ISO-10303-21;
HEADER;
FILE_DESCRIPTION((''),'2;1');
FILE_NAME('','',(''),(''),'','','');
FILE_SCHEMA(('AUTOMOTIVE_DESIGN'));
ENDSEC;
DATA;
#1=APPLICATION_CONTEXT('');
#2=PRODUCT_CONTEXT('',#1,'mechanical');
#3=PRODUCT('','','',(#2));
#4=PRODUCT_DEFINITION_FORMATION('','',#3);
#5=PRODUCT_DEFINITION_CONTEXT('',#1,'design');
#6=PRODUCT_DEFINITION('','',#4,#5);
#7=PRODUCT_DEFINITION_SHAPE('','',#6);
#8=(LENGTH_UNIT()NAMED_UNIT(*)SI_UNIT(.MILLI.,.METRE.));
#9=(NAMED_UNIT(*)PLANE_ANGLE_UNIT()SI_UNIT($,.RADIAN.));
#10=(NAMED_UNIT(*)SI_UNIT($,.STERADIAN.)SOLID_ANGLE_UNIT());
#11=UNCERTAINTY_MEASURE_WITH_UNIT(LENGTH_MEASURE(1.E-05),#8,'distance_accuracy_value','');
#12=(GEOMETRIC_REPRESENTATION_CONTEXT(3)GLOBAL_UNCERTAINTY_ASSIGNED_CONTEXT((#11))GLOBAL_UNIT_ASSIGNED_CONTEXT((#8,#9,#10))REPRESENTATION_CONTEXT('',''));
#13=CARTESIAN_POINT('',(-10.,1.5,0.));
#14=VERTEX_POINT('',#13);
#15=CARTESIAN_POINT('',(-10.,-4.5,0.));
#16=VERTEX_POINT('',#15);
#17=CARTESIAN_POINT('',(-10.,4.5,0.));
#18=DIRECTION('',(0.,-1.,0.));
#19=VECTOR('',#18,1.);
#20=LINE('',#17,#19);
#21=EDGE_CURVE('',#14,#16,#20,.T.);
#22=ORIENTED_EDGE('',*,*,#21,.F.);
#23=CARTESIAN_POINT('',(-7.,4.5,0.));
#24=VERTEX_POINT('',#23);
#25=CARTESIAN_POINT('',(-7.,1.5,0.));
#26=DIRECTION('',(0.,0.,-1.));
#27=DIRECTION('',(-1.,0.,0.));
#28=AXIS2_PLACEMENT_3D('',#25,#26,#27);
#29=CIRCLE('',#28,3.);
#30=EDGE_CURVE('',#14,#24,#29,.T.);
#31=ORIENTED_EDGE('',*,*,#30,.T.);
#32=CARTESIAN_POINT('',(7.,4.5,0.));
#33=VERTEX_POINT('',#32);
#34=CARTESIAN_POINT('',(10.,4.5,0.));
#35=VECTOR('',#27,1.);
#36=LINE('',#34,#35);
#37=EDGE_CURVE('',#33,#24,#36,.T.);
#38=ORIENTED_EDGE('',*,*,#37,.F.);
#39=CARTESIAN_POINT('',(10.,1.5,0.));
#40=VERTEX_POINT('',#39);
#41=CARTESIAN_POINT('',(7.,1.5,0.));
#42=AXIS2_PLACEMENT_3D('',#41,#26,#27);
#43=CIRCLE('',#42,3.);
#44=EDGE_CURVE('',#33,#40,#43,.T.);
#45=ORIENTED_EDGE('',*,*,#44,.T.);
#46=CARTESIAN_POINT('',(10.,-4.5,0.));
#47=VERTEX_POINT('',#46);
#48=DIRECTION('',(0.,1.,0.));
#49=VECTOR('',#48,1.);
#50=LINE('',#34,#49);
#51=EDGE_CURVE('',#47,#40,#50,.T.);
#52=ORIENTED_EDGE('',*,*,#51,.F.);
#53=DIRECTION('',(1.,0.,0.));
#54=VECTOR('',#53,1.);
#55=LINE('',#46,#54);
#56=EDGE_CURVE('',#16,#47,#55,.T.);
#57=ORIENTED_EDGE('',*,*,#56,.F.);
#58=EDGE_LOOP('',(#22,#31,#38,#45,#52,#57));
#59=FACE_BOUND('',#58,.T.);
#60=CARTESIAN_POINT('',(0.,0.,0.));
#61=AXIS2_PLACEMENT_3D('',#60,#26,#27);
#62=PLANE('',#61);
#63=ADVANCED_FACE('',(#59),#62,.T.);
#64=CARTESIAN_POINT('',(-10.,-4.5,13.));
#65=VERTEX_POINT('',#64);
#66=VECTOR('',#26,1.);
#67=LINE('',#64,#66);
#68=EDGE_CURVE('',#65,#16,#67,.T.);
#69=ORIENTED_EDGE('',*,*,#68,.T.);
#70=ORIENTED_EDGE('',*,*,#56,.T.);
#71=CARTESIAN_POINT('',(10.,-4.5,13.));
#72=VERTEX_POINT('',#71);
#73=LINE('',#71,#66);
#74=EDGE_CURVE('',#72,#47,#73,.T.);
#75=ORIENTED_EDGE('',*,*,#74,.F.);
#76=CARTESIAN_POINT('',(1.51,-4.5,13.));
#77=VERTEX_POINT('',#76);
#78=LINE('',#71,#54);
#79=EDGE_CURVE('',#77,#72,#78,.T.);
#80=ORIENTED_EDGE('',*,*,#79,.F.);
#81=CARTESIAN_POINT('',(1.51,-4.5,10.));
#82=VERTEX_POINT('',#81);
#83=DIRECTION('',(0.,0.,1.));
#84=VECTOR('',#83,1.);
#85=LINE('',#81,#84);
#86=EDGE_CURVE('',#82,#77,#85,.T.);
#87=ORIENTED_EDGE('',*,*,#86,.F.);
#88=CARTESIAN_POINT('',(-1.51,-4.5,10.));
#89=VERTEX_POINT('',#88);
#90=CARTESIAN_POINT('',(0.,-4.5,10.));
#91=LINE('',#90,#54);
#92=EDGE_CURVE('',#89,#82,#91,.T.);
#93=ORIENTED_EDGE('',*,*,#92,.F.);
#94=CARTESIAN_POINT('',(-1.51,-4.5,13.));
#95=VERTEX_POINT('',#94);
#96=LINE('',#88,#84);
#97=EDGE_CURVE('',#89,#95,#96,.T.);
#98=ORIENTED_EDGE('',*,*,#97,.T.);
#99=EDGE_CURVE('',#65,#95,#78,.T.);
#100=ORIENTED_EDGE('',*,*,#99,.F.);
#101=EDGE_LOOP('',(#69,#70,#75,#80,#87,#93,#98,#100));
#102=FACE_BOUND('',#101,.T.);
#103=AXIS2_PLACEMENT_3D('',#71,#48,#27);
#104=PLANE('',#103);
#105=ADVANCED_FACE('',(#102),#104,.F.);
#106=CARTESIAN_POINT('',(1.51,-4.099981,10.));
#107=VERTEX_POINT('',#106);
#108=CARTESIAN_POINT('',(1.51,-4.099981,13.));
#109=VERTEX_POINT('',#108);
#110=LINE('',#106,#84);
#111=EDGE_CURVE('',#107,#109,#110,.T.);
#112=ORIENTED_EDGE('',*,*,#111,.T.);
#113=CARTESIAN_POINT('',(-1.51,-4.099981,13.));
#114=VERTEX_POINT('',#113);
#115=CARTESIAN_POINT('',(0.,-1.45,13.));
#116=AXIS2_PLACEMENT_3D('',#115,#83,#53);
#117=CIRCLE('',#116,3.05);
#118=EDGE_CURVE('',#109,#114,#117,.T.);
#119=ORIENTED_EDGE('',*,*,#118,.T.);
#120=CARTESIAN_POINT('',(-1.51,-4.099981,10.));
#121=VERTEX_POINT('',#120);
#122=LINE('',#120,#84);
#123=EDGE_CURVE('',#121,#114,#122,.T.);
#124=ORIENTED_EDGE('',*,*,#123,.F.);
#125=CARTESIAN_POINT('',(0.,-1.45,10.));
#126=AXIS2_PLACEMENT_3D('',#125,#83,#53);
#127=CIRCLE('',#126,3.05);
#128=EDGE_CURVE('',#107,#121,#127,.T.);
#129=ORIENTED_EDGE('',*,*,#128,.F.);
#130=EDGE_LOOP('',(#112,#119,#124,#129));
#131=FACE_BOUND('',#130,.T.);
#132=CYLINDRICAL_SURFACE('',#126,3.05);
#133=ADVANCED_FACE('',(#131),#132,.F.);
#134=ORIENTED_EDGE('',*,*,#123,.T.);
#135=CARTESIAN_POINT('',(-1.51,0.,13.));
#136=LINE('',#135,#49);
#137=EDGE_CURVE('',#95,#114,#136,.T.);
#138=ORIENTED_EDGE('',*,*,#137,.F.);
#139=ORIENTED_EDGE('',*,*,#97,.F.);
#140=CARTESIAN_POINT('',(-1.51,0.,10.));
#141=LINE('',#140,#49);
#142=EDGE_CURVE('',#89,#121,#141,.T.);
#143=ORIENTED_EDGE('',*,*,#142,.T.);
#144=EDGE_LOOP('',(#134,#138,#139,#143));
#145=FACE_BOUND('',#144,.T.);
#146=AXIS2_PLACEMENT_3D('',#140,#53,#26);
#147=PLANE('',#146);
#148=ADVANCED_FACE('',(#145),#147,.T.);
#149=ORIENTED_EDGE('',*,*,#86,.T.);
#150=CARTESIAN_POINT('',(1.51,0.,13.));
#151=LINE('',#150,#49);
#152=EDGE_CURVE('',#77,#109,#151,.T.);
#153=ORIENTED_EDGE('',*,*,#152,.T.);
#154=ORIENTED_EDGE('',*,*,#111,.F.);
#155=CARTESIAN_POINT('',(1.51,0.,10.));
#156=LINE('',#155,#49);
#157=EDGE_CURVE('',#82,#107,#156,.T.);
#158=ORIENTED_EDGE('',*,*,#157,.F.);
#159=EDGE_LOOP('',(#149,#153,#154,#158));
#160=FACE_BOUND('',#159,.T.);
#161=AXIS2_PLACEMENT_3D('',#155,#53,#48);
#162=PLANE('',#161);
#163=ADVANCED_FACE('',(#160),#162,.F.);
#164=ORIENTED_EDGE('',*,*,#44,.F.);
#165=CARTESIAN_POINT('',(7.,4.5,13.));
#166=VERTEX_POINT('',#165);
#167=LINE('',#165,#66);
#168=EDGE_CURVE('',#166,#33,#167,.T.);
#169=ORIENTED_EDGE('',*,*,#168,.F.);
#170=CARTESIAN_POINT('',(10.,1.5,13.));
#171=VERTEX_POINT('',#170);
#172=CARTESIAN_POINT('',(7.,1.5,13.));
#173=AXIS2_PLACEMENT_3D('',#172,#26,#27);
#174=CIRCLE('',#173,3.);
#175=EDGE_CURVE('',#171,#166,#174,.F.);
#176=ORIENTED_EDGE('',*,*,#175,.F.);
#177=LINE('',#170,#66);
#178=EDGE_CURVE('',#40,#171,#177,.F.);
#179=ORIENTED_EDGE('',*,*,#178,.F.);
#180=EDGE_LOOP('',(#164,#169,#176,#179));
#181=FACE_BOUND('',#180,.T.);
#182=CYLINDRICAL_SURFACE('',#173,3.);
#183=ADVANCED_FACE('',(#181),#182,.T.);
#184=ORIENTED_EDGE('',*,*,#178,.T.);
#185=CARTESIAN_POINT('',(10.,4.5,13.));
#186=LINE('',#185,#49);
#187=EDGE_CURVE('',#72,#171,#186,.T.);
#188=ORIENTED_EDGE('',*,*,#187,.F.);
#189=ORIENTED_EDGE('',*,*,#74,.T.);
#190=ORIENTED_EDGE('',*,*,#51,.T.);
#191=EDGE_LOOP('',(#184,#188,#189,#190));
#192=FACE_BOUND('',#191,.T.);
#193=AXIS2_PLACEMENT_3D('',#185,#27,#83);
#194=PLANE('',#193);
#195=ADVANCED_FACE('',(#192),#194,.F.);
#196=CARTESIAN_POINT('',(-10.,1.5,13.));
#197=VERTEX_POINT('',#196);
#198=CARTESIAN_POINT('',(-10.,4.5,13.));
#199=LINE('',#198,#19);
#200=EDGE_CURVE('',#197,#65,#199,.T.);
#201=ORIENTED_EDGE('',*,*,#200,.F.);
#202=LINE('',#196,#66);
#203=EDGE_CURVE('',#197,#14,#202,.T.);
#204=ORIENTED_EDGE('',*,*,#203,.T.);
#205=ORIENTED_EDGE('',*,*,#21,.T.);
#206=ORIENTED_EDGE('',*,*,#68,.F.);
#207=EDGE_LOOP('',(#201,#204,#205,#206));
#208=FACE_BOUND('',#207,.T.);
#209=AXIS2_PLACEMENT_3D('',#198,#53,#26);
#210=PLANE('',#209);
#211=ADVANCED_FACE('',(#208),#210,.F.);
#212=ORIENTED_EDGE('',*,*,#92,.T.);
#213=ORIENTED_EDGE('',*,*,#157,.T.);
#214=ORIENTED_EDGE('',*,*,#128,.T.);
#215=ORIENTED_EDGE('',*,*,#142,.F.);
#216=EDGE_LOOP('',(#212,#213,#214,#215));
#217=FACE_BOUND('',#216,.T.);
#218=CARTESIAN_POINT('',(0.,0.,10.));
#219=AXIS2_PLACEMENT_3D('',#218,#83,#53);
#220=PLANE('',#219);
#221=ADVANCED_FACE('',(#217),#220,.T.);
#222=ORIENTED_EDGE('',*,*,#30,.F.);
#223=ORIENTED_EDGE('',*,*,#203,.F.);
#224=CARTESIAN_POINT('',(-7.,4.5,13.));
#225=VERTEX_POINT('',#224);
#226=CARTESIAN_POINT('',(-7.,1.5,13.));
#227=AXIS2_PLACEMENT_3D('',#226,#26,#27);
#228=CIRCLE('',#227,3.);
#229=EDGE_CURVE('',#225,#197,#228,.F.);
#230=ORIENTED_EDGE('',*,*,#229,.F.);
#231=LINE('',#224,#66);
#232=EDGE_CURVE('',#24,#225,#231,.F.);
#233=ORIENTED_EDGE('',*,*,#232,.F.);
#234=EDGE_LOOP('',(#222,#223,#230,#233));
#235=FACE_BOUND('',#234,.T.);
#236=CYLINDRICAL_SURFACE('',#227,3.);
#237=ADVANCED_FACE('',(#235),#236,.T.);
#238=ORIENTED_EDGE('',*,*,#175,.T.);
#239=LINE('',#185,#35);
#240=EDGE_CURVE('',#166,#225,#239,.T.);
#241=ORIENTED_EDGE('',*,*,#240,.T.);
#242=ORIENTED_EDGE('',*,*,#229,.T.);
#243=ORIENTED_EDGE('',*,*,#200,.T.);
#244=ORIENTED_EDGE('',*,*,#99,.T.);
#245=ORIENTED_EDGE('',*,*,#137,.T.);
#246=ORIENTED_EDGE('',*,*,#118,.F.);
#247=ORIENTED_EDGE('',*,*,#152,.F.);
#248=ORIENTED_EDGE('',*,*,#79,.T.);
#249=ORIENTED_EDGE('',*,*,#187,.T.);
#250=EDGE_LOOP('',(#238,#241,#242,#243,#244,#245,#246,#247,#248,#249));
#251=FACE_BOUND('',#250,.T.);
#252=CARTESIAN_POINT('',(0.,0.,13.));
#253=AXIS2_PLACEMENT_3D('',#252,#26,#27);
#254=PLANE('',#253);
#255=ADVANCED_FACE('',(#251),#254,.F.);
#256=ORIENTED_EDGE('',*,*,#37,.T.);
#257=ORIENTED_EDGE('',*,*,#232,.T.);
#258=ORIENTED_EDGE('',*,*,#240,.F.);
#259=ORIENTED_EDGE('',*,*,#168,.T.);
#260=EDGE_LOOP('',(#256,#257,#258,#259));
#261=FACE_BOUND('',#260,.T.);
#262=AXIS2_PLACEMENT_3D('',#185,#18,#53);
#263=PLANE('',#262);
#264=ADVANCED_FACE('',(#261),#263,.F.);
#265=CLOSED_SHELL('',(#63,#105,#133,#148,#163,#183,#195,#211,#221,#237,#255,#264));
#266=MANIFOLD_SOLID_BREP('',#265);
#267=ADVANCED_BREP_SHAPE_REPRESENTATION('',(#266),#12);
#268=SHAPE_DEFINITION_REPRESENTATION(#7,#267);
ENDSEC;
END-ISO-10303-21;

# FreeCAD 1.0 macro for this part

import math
import FreeCAD as App
import Part
import Sketcher
Q = App.Units.Quantity


def edges_at(feature, points):
    """Names of the edges that pass closest to the given points."""
    edges = feature.Shape.Edges
    near = lambda p: min(range(len(edges)), key=lambda i: edges[i].distToShape(Part.Vertex(*p))[0])
    return sorted({f"Edge{near(p) + 1}" for p in points})

doc = App.newDocument("Part")
params = doc.addObject("Spreadsheet::Sheet", "Params")
for row, (alias, value) in enumerate([
    ("sketch1_width", "20 mm"),
    ("sketch1_height", "9 mm"),
    ("pad1_length", "13 mm"),
    ("sketch2_radius", "3.05 mm"),
    ("sketch2_width", "3.02 mm"),
    ("pocket1_length", "3 mm"),
    ("fillet_radius", "3 mm"),
], start=1):
    params.set(f"A{row}", alias)
    params.set(f"B{row}", "=" + value)
    params.setAlias(f"B{row}", alias)

body = doc.addObject("PartDesign::Body", "Body")

sketch1 = body.newObject("Sketcher::SketchObject", "Sketch")
sketch1.AttachmentSupport = (doc.getObject("XY_Plane"), [""])
sketch1.MapMode = "FlatFace"
sketch1.addGeometry(Part.LineSegment(App.Vector(-10, 4.5, 0), App.Vector(-10, -4.5, 0)), False)
sketch1.addGeometry(Part.LineSegment(App.Vector(-10, -4.5, 0), App.Vector(10, -4.5, 0)), False)
sketch1.addGeometry(Part.LineSegment(App.Vector(10, -4.5, 0), App.Vector(10, 4.5, 0)), False)
sketch1.addGeometry(Part.LineSegment(App.Vector(10, 4.5, 0), App.Vector(-10, 4.5, 0)), False)
sketch1.addConstraint(Sketcher.Constraint("Coincident", 0, 2, 1, 1))
sketch1.addConstraint(Sketcher.Constraint("Coincident", 1, 2, 2, 1))
sketch1.addConstraint(Sketcher.Constraint("Coincident", 2, 2, 3, 1))
sketch1.addConstraint(Sketcher.Constraint("Coincident", 3, 2, 0, 1))
sketch1.addConstraint(Sketcher.Constraint("Vertical", 0))
sketch1.addConstraint(Sketcher.Constraint("Horizontal", 1))
sketch1.addConstraint(Sketcher.Constraint("Vertical", 2))
sketch1.addConstraint(Sketcher.Constraint("Horizontal", 3))
sketch1.addConstraint(Sketcher.Constraint("Symmetric", 0, 2, 2, 2, -1, 1))
sketch1.addConstraint(Sketcher.Constraint("DistanceX", 1, 1, 1, 2, Q("20 mm")))
sketch1.addConstraint(Sketcher.Constraint("DistanceY", 0, 2, 0, 1, Q("9 mm")))
sketch1.setExpression("Constraints[9]", "Params.sketch1_width")
sketch1.setExpression("Constraints[10]", "Params.sketch1_height")
pad1 = body.newObject("PartDesign::Pad", "Pad")
pad1.Profile = sketch1
pad1.setExpression("Length", "Params.pad1_length")

sketch2 = body.newObject("Sketcher::SketchObject", "Sketch001")
sketch2.AttachmentSupport = (doc.getObject("XY_Plane"), [""])
sketch2.MapMode = "FlatFace"
sketch2.AttachmentOffset = App.Placement(App.Vector(0, 0, 13), App.Rotation())
sketch2.addGeometry(Part.LineSegment(App.Vector(1.51, -4.5, 0), App.Vector(1.51, -4.099981, 0)), False)
sketch2.addGeometry(Part.ArcOfCircle(Part.Circle(App.Vector(0, -1.45, 0), App.Vector(0, 0, 1), 3.05), math.radians(-60.324845), math.radians(240.324845)), False)
sketch2.addGeometry(Part.LineSegment(App.Vector(-1.51, -4.099981, 0), App.Vector(-1.51, -4.5, 0)), False)
sketch2.addGeometry(Part.LineSegment(App.Vector(-1.51, -4.5, 0), App.Vector(1.51, -4.5, 0)), False)
sketch2.addConstraint(Sketcher.Constraint("Coincident", 0, 2, 1, 1))
sketch2.addConstraint(Sketcher.Constraint("Coincident", 1, 2, 2, 1))
sketch2.addConstraint(Sketcher.Constraint("Coincident", 2, 2, 3, 1))
sketch2.addConstraint(Sketcher.Constraint("Coincident", 3, 2, 0, 1))
sketch2.addConstraint(Sketcher.Constraint("Vertical", 0))
sketch2.addConstraint(Sketcher.Constraint("Vertical", 2))
sketch2.addConstraint(Sketcher.Constraint("Horizontal", 3))
sketch2.addConstraint(Sketcher.Constraint("Symmetric", 0, 2, 1, 2, -2))
sketch2.addConstraint(Sketcher.Constraint("Radius", 1, Q("3.05 mm")))
sketch2.addConstraint(Sketcher.Constraint("DistanceX", 3, 1, 3, 2, Q("3.02 mm")))
sketch2.addConstraint(Sketcher.Constraint("DistanceY", 2, 2, -1, 1, Q("4.5 mm")))
sketch2.addConstraint(Sketcher.Constraint("DistanceY", 1, 3, -1, 1, Q("1.45 mm")))
sketch2.setExpression("Constraints[8]", "Params.sketch2_radius")
sketch2.setExpression("Constraints[9]", "Params.sketch2_width")
pocket1 = body.newObject("PartDesign::Pocket", "Pocket")
pocket1.Profile = sketch2
pocket1.setExpression("Length", "Params.pocket1_length")
doc.recompute()

fillet = body.newObject("PartDesign::Fillet", "Fillet")
fillet.Base = (pocket1, edges_at(pocket1, [(-10, 4.5, 6.5), (10, 4.5, 6.5)]))
fillet.setExpression("Radius", "Params.fillet_radius")

doc.recompute()
